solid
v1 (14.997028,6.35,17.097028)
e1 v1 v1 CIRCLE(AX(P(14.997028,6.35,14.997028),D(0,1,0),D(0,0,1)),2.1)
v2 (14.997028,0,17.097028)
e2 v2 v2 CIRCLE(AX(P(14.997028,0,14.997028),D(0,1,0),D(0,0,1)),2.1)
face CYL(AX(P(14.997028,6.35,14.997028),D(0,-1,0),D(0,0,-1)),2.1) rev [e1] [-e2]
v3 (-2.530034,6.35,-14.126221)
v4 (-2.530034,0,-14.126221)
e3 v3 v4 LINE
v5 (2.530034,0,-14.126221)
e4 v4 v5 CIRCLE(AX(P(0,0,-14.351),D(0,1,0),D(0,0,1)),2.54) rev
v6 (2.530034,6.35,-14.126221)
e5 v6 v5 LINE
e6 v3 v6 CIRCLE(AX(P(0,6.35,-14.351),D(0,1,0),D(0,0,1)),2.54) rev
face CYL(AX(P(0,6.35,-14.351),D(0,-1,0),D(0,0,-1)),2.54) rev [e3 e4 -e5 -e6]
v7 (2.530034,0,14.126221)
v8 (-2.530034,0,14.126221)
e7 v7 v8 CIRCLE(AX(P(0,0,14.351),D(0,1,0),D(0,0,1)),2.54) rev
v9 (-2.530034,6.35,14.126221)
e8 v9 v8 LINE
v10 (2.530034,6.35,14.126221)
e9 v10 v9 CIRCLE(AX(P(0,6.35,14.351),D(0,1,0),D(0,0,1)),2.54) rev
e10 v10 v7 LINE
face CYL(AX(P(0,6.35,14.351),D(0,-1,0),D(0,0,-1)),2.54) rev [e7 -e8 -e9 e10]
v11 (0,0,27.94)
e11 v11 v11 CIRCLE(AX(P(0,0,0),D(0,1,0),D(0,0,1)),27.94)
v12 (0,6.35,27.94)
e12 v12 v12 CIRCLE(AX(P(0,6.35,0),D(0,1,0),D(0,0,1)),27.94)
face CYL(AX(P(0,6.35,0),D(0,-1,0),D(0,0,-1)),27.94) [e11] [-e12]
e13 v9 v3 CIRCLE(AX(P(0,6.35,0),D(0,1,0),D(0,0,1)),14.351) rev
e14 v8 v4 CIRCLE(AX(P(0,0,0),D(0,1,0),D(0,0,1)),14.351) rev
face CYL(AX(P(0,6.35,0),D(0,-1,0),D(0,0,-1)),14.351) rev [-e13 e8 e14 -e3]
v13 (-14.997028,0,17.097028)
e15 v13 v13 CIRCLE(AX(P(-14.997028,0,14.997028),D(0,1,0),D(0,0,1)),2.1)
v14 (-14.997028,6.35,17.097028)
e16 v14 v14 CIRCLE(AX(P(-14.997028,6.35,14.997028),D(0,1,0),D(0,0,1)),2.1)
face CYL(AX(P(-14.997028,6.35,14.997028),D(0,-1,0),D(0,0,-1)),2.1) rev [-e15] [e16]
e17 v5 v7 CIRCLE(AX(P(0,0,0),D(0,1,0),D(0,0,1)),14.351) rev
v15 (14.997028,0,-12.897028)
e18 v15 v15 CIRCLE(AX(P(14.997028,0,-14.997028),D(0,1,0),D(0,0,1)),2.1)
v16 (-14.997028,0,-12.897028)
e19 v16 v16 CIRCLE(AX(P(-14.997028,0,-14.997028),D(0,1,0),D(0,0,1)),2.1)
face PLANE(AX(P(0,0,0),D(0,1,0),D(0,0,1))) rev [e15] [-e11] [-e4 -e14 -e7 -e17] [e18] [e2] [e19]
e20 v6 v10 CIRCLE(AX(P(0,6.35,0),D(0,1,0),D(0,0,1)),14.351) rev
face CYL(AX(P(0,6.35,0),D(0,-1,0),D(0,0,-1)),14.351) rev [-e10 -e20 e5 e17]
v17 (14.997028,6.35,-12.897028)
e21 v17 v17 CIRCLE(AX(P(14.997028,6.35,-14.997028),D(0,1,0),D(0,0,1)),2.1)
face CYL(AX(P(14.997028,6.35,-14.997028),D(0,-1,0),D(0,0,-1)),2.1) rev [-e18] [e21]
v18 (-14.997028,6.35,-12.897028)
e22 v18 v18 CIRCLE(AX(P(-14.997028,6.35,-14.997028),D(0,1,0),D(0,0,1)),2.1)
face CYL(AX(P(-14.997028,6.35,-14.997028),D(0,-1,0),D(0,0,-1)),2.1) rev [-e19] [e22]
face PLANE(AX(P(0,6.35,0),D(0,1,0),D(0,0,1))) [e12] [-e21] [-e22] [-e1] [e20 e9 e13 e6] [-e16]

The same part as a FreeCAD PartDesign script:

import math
import FreeCAD as App
import Part
import Sketcher
from FreeCAD import Vector
Q = App.Units.Quantity

doc = App.newDocument("Part")
body = doc.addObject("PartDesign::Body", "Body")

# Sketch on XZ plane
sketch1 = body.newObject("Sketcher::SketchObject", "Sketch")
sketch1.AttachmentSupport = (doc.getObject("XZ_Plane"), [""])
sketch1.MapMode = "FlatFace"
sketch1.addGeometry([
    Part.Circle(Vector(0, 0, 0), Vector(0, 0, 1), 27.9),  # 0
    Part.Circle(Vector(-15, -15, 0), Vector(0, 0, 1), 2.1),  # 1
    Part.Circle(Vector(-15, 15, 0), Vector(0, 0, 1), 2.1),  # 2
    Part.ArcOfCircle(Part.Circle(Vector(0, 0, 0), Vector(0, 0, 1), 14.4), math.radians(-80), math.radians(80)),  # 3
    Part.ArcOfCircle(Part.Circle(Vector(0, 14.4, 0), Vector(0, 0, 1), 2.5), math.radians(-5), math.radians(185)),  # 4
    Part.ArcOfCircle(Part.Circle(Vector(0, 0, 0), Vector(0, 0, 1), 14.4), math.radians(100), math.radians(260)),  # 5
    Part.ArcOfCircle(Part.Circle(Vector(0, -14.4, 0), Vector(0, 0, 1), 2.5), math.radians(175), math.radians(365)),  # 6
    Part.Circle(Vector(15, -15, 0), Vector(0, 0, 1), 2.1),  # 7
    Part.Circle(Vector(15, 15, 0), Vector(0, 0, 1), 2.1),  # 8
], False)
sketch1.addConstraint([
    Sketcher.Constraint("Coincident", 3, 2, 4, 1),
    Sketcher.Constraint("Coincident", 4, 2, 5, 1),
    Sketcher.Constraint("Coincident", 5, 2, 6, 1),
    Sketcher.Constraint("Coincident", 6, 2, 3, 1),
    Sketcher.Constraint("Coincident", 0, 3, -1, 1),
    Sketcher.Constraint("Coincident", 3, 3, -1, 1),
    Sketcher.Constraint("Coincident", 5, 3, -1, 1),
    Sketcher.Constraint("Equal", 1, 2),
    Sketcher.Constraint("Equal", 3, 5),
    Sketcher.Constraint("Equal", 4, 6),
    Sketcher.Constraint("Equal", 2, 7),
    Sketcher.Constraint("Equal", 7, 8),
    Sketcher.Constraint("Symmetric", 4, 3, 6, 3, -1, 1),
    Sketcher.Constraint("Symmetric", 2, 3, 7, 3, -1, 1),
    Sketcher.Constraint("Symmetric", 1, 3, 8, 3, -1, 1),
    Sketcher.Constraint("Symmetric", 1, 3, 7, 3, -2),
    Sketcher.Constraint("PointOnObject", 4, 3, -2),
    Sketcher.Constraint("Diameter", 0, Q("2.2 in")),
    Sketcher.Constraint("Radius", 4, Q("0.1 in")),
    Sketcher.Constraint("Radius", 3, Q("0.565 in")),
    Sketcher.Constraint("Diameter", 1, 4.2),
    Sketcher.Constraint("DistanceY", 6, 3, 4, 3, Q("1.13 in")),
    Sketcher.Constraint("DistanceX", 1, 3, -1, 1, 14.997028),
    Sketcher.Constraint("DistanceY", 1, 3, -1, 1, 14.997028),
])
pad1 = body.newObject("PartDesign::Pad", "Pad")
pad1.Profile = sketch1
pad1.Length = Q("0.25 in")
pad1.Reversed = True

doc.recompute()
